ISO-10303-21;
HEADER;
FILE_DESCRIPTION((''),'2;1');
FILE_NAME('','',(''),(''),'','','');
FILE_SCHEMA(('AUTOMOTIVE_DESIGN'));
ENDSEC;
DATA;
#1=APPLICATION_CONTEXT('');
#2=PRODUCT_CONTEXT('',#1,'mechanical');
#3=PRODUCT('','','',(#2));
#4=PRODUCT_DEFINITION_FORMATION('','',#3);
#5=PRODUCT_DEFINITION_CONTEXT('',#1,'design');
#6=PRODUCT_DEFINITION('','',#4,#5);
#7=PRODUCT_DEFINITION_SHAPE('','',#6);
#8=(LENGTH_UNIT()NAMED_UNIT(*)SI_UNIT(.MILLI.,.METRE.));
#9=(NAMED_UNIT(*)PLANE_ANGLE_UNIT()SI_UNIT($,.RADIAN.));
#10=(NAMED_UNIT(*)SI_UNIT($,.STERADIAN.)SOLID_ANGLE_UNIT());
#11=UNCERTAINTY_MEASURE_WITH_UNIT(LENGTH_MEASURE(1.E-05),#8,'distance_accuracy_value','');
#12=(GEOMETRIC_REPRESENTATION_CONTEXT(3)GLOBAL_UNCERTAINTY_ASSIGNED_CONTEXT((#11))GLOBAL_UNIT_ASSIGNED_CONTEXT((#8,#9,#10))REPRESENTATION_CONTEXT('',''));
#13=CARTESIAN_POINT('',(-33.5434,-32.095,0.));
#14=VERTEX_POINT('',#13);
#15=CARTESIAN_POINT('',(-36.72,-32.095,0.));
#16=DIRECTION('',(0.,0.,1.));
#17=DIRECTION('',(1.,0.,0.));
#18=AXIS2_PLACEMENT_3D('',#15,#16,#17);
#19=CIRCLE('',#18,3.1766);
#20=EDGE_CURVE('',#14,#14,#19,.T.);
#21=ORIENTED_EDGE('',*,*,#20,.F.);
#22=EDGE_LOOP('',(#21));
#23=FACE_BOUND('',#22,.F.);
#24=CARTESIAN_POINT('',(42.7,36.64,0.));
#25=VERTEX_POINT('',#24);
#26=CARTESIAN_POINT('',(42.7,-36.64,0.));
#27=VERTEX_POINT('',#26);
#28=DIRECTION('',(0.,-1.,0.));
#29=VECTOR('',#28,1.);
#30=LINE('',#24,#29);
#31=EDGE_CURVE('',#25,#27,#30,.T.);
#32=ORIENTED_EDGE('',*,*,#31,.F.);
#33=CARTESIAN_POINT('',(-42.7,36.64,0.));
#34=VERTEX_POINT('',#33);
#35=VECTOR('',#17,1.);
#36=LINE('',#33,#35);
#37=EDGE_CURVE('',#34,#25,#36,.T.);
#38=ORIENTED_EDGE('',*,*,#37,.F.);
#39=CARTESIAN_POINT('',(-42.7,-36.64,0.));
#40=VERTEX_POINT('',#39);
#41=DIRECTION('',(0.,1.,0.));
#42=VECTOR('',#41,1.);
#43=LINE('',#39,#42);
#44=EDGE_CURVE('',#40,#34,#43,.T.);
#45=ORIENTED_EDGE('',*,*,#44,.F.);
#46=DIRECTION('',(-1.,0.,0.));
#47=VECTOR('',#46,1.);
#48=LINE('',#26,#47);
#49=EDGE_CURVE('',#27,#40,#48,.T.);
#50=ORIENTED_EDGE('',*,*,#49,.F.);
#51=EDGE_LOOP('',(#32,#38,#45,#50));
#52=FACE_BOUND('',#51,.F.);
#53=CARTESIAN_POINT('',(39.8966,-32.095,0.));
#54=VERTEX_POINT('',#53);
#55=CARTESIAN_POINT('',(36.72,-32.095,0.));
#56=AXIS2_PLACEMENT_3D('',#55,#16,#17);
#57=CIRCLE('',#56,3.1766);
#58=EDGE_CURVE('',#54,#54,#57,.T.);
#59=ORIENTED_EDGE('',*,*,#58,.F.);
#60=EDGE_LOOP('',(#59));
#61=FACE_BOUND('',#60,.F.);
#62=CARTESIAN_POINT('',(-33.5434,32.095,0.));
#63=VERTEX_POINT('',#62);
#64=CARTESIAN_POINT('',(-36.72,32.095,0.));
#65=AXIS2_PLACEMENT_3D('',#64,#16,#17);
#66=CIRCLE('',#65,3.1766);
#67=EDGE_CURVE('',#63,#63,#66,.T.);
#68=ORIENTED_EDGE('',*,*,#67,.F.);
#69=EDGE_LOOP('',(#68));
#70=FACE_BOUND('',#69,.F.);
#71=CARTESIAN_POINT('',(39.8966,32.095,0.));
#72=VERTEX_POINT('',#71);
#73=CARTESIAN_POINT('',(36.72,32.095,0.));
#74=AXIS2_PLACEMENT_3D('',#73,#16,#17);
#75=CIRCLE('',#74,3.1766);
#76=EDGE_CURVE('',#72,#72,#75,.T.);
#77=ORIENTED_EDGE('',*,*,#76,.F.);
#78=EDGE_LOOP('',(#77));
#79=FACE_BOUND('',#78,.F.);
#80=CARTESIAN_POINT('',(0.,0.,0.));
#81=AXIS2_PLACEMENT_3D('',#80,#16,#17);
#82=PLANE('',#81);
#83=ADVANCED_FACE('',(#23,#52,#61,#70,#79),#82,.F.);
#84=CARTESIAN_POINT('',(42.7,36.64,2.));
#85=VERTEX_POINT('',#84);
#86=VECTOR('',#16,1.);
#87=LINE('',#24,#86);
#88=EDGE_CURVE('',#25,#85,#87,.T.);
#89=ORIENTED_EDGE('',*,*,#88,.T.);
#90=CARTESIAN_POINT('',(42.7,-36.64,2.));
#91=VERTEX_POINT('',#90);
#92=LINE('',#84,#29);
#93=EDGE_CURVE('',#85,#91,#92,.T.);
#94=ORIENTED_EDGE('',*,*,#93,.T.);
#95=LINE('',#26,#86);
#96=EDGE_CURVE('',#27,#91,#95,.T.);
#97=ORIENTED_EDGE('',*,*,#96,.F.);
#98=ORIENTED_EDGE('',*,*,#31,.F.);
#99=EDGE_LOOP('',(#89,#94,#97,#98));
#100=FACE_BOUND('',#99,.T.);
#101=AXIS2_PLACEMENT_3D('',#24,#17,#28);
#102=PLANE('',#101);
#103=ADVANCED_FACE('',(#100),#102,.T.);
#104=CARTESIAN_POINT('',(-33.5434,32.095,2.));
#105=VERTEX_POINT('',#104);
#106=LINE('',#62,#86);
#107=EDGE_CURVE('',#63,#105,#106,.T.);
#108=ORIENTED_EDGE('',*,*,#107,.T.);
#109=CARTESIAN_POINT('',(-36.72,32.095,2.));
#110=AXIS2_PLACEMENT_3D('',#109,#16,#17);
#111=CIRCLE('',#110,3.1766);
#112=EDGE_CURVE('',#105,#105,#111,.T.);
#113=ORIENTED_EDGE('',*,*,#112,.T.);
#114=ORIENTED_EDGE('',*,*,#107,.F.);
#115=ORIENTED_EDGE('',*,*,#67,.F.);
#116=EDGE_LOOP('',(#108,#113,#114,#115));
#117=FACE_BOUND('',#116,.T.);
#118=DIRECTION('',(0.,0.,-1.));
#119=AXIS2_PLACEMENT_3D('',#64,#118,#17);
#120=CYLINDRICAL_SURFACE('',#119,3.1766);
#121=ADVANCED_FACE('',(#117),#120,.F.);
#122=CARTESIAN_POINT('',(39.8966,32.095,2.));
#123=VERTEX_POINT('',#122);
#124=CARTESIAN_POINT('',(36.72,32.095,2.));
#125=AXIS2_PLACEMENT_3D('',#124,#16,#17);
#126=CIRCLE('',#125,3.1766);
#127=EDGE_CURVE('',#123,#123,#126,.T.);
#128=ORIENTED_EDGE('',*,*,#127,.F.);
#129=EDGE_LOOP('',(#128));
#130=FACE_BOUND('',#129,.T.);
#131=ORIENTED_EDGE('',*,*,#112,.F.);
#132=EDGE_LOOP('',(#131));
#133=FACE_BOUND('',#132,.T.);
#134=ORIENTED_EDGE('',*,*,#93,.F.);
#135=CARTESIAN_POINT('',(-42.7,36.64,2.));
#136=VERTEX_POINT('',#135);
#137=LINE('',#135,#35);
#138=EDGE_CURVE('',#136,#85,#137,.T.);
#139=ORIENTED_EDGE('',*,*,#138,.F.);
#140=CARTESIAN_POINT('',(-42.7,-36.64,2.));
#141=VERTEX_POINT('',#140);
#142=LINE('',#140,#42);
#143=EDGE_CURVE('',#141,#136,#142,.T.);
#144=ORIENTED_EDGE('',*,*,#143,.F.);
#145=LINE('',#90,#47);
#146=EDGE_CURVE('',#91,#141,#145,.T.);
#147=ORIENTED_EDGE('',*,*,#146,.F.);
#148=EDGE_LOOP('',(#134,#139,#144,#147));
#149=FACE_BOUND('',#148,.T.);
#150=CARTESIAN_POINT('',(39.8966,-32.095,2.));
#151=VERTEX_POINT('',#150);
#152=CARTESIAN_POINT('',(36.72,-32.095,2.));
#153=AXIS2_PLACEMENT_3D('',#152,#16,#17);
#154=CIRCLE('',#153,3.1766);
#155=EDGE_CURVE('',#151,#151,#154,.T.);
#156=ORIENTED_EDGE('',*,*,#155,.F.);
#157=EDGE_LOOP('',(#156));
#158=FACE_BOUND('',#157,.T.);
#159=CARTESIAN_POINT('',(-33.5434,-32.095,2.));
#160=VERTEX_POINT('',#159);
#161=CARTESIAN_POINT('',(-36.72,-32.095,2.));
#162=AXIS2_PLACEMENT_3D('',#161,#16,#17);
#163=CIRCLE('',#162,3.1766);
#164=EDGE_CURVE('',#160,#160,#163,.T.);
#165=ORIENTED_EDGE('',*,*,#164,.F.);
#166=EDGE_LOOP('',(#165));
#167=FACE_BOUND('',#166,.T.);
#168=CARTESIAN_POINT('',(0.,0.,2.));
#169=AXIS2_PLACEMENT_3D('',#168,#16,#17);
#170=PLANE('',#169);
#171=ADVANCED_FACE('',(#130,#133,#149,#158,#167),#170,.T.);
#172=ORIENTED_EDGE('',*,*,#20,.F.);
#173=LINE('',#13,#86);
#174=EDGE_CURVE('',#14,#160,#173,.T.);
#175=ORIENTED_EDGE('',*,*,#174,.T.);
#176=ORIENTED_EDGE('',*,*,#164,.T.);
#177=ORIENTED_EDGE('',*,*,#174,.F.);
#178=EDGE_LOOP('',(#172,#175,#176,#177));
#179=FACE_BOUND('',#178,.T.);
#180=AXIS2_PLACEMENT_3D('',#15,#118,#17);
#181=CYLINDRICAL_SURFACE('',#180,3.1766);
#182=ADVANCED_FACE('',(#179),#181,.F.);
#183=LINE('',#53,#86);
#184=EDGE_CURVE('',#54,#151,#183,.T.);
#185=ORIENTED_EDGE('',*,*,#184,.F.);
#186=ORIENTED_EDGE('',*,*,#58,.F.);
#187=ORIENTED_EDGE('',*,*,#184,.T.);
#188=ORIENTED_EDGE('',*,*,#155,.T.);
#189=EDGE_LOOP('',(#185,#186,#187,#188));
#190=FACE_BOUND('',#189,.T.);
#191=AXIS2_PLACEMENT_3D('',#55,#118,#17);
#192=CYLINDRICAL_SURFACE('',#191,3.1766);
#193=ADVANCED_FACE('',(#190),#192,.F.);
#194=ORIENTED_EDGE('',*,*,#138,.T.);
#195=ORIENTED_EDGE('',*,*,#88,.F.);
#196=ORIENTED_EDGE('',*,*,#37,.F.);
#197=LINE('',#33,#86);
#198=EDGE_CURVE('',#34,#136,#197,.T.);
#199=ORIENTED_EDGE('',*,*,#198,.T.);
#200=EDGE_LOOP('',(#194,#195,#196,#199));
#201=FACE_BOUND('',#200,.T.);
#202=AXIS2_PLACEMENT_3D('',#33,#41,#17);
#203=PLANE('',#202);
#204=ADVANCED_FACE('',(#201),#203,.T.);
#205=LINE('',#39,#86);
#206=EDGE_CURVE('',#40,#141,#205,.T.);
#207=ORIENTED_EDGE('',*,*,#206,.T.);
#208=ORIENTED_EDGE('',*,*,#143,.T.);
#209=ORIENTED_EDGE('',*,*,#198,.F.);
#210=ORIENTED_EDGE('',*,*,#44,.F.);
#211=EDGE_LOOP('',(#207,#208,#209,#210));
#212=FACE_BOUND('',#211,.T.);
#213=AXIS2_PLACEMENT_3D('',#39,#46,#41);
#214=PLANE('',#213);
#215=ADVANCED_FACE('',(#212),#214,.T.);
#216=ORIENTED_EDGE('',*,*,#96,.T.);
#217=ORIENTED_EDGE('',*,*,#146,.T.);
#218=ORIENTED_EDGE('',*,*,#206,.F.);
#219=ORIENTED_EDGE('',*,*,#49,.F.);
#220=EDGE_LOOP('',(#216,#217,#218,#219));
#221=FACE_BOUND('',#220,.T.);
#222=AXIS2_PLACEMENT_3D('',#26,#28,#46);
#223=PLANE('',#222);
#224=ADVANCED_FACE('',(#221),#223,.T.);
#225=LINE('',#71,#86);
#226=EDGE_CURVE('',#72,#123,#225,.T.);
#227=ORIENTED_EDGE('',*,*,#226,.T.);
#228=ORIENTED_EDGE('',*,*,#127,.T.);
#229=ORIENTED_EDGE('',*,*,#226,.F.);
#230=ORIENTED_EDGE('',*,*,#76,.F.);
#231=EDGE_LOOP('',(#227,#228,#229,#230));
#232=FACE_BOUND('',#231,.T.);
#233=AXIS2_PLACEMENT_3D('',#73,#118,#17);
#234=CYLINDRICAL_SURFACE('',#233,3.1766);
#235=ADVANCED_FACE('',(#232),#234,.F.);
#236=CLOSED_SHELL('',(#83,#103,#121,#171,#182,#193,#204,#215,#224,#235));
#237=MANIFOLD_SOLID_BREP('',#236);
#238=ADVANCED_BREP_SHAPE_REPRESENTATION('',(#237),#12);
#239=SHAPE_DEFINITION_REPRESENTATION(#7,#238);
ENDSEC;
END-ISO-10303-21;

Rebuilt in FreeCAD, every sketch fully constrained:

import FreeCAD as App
import Part
import Sketcher

doc = App.newDocument("Part")
params = doc.addObject("Spreadsheet::Sheet", "Params")
for row, (alias, value) in enumerate([
    ("sketch1_width", "85.4 mm"),
    ("sketch1_height", "73.28 mm"),
    ("pad1_length", "2 mm"),
], start=1):
    params.set(f"A{row}", alias)
    params.set(f"B{row}", "=" + value)
    params.setAlias(f"B{row}", alias)

body = doc.addObject("PartDesign::Body", "Body")

# Sketch on XY plane
sketch1 = body.newObject("Sketcher::SketchObject", "Sketch")
sketch1.AttachmentSupport = (doc.getObject("XY_Plane"), [""])
sketch1.MapMode = "FlatFace"
sketch1.addGeometry([
    Part.LineSegment(App.Vector(42.7, 36.64, 0), App.Vector(-42.7, 36.64, 0)),  # 0
    Part.LineSegment(App.Vector(-42.7, 36.64, 0), App.Vector(-42.7, -36.64, 0)),  # 1
    Part.LineSegment(App.Vector(-42.7, -36.64, 0), App.Vector(42.7, -36.64, 0)),  # 2
    Part.LineSegment(App.Vector(42.7, -36.64, 0), App.Vector(42.7, 36.64, 0)),  # 3
    Part.Circle(App.Vector(-36.72, -32.095, 0), App.Vector(0, 0, 1), 3.1766),  # 4
    Part.Circle(App.Vector(36.72, -32.095, 0), App.Vector(0, 0, 1), 3.1766),  # 5
    Part.Circle(App.Vector(-36.72, 32.095, 0), App.Vector(0, 0, 1), 3.1766),  # 6
    Part.Circle(App.Vector(36.72, 32.095, 0), App.Vector(0, 0, 1), 3.1766),  # 7
], False)
sketch1.addConstraint([
    Sketcher.Constraint("Coincident", 0, 2, 1, 1),
    Sketcher.Constraint("Coincident", 1, 2, 2, 1),
    Sketcher.Constraint("Coincident", 2, 2, 3, 1),
    Sketcher.Constraint("Coincident", 3, 2, 0, 1),
    Sketcher.Constraint("Horizontal", 0),
    Sketcher.Constraint("Vertical", 1),
    Sketcher.Constraint("Horizontal", 2),
    Sketcher.Constraint("Vertical", 3),
    Sketcher.Constraint("Equal", 4, 5),
    Sketcher.Constraint("Equal", 5, 6),
    Sketcher.Constraint("Equal", 6, 7),
    Sketcher.Constraint("Symmetric", 5, 3, 6, 3, -1, 1),
    Sketcher.Constraint("Symmetric", 4, 3, 7, 3, -1, 1),
    Sketcher.Constraint("Symmetric", 0, 2, 2, 2, -1, 1),
    Sketcher.Constraint("Symmetric", 4, 3, 5, 3, -2),
    Sketcher.Constraint("DistanceX", 0, 2, 0, 1, 85.4),
    Sketcher.Constraint("DistanceY", 1, 2, 1, 1, 73.28),
    Sketcher.Constraint("DistanceX", 4, 3, 5, 3, 73.44),
    Sketcher.Constraint("DistanceY", 4, 3, 6, 3, 64.19),
    Sketcher.Constraint("Diameter", 4, 6.3532),
])
sketch1.setExpression("Constraints[15]", "Params.sketch1_width")
sketch1.setExpression("Constraints[16]", "Params.sketch1_height")
pad1 = body.newObject("PartDesign::Pad", "Pad")
pad1.Profile = sketch1
pad1.setExpression("Length", "Params.pad1_length")

doc.recompute()
